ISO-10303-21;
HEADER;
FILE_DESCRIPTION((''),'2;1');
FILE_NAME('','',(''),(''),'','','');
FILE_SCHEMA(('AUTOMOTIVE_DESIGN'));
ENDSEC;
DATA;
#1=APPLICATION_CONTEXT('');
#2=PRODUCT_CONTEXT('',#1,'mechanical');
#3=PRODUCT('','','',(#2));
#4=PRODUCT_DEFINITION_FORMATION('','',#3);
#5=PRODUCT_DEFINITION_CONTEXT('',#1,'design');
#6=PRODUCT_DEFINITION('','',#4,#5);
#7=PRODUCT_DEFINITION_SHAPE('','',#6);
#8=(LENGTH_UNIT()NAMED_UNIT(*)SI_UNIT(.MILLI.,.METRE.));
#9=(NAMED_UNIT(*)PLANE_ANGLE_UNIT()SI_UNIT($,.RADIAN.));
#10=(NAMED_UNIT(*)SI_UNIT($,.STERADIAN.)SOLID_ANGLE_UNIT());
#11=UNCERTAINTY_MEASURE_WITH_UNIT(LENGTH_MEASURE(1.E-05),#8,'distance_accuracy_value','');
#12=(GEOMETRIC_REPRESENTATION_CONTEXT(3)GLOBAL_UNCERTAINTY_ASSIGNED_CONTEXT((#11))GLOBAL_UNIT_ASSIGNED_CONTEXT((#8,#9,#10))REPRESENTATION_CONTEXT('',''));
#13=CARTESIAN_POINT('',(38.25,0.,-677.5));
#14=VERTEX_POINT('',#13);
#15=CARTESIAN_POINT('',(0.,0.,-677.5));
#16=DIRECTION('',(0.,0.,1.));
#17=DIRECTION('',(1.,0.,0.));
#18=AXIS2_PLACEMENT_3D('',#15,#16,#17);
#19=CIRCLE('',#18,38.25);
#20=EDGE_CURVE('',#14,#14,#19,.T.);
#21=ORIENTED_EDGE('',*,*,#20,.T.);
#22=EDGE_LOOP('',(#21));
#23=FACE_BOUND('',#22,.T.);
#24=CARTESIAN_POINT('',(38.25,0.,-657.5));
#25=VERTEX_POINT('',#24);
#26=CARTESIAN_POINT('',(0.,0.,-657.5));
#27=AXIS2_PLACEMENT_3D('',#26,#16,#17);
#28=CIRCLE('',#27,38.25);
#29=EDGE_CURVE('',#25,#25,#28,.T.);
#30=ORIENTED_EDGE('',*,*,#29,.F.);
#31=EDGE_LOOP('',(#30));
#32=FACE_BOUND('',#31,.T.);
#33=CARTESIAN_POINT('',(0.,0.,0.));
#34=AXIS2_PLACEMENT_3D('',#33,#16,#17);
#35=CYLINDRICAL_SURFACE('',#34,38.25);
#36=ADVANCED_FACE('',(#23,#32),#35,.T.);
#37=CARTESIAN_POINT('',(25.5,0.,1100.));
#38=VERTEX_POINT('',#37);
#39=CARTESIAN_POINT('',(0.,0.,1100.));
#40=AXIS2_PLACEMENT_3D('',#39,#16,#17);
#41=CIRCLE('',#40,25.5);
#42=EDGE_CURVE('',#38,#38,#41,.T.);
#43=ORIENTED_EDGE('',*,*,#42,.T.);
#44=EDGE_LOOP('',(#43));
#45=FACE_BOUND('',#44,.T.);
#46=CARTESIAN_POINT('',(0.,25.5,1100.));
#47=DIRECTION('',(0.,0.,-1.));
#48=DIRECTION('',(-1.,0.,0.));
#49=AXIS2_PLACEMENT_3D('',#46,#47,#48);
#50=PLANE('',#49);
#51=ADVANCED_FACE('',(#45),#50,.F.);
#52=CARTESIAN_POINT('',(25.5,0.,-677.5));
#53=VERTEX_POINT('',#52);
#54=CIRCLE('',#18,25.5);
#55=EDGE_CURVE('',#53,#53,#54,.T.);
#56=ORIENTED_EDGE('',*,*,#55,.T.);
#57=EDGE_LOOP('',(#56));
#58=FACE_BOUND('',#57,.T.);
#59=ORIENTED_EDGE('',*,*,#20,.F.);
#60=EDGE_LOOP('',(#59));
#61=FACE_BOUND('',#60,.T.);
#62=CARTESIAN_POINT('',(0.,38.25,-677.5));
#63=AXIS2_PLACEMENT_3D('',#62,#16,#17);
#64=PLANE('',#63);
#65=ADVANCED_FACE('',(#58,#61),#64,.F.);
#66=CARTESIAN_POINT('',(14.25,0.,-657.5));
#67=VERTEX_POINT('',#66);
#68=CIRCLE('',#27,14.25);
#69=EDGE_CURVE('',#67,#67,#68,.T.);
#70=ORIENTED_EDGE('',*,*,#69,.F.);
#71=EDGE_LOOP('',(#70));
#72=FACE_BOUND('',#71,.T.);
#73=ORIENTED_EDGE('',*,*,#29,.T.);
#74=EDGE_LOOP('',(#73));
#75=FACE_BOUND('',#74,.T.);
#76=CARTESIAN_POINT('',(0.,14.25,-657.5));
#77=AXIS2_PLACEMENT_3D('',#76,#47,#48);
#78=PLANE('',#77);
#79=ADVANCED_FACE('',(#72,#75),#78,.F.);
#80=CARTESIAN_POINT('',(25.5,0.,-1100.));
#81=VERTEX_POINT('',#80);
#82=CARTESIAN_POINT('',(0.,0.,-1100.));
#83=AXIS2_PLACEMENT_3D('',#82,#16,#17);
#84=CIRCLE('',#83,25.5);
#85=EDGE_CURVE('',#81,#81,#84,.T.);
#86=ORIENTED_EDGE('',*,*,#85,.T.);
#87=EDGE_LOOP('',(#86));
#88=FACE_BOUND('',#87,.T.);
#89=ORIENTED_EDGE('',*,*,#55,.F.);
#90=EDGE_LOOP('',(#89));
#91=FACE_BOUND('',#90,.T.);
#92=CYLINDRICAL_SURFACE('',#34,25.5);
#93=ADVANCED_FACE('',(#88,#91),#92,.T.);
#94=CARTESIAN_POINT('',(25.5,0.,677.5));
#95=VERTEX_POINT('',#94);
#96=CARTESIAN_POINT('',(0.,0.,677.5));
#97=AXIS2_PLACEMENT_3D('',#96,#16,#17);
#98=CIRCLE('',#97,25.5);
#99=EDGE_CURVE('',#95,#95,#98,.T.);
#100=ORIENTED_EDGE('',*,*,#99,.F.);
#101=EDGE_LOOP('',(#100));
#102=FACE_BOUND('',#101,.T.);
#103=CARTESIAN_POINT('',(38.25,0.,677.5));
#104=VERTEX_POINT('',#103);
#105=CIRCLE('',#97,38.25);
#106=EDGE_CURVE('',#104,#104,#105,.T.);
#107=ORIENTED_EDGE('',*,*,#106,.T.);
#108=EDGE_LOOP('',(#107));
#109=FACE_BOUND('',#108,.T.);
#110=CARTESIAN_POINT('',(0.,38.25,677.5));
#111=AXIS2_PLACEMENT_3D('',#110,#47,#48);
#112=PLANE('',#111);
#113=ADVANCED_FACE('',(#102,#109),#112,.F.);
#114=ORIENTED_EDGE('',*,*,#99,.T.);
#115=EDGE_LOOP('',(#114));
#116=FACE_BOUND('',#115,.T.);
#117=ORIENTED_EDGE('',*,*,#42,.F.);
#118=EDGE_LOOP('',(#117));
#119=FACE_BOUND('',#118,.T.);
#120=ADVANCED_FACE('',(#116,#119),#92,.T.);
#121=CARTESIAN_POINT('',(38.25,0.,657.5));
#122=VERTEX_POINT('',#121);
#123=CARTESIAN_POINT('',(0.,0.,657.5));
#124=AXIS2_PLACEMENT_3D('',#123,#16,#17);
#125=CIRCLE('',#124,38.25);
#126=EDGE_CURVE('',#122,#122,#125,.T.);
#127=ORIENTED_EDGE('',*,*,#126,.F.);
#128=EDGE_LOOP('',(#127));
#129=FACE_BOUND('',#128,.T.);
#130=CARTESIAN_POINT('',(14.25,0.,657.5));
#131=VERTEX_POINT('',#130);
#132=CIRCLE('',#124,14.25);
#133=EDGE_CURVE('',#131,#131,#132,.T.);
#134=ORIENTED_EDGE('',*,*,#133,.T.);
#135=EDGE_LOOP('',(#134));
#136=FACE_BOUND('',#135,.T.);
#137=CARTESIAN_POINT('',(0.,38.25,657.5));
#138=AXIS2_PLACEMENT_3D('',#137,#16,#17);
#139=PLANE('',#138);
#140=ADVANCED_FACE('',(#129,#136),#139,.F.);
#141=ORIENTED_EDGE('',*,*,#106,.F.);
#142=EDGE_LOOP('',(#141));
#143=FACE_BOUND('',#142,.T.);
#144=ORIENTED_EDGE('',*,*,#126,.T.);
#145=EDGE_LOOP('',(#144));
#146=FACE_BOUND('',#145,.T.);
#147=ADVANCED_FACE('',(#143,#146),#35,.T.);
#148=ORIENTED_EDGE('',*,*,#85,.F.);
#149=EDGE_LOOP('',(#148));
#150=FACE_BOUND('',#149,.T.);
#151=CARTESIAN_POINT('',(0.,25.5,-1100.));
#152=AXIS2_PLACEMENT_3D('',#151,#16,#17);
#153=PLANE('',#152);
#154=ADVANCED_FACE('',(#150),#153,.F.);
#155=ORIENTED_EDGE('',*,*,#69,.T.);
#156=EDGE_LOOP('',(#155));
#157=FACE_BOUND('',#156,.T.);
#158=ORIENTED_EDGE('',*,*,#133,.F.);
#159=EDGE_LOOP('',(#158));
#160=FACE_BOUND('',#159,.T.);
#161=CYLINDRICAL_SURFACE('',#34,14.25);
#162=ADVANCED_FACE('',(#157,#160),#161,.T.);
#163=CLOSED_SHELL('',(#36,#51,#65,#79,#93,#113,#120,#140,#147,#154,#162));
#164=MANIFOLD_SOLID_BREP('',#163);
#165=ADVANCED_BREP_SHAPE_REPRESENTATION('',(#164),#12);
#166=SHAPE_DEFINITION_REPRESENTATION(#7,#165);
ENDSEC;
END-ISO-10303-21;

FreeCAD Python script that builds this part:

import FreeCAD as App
import Part
import Sketcher
Q = App.Units.Quantity

doc = App.newDocument("Part")
params = doc.addObject("Spreadsheet::Sheet", "Params")
for row, (alias, value) in enumerate([
    ("sketch1_width", "24 mm"),
    ("sketch1_height", "2200 mm"),
    ("sketch1_height2", "20 mm"),
    ("sketch1_height3", "1315 mm"),
    ("sketch1_width2", "25.5 mm"),
    ("revolution_angle", "360 deg"),
], start=1):
    params.set(f"A{row}", alias)
    params.set(f"B{row}", "=" + value)
    params.setAlias(f"B{row}", alias)

body = doc.addObject("PartDesign::Body", "Body")

# Sketch on YZ plane
sketch1 = doc.addObject("Sketcher::SketchObject", "Sketch")
body.addObject(sketch1)
sketch1.AttachmentSupport = (doc.YZ_Plane, [""])
sketch1.MapMode = "FlatFace"
sketch1.addGeometry([
    Part.LineSegment(App.Vector(0, 1100, 0), App.Vector(0, -1100, 0)),  # 0
    Part.LineSegment(App.Vector(0, -1100, 0), App.Vector(26, -1100, 0)),  # 1
    Part.LineSegment(App.Vector(26, -1100, 0), App.Vector(26, -678, 0)),  # 2
    Part.LineSegment(App.Vector(26, -678, 0), App.Vector(38, -678, 0)),  # 3
    Part.LineSegment(App.Vector(38, -678, 0), App.Vector(38, -658, 0)),  # 4
    Part.LineSegment(App.Vector(38, -658, 0), App.Vector(14, -658, 0)),  # 5
    Part.LineSegment(App.Vector(14, -658, 0), App.Vector(14, 658, 0)),  # 6
    Part.LineSegment(App.Vector(14, 658, 0), App.Vector(38, 658, 0)),  # 7
    Part.LineSegment(App.Vector(38, 658, 0), App.Vector(38, 678, 0)),  # 8
    Part.LineSegment(App.Vector(38, 678, 0), App.Vector(26, 678, 0)),  # 9
    Part.LineSegment(App.Vector(26, 678, 0), App.Vector(26, 1100, 0)),  # 10
    Part.LineSegment(App.Vector(26, 1100, 0), App.Vector(0, 1100, 0)),  # 11
], False)
sketch1.addConstraint([
    Sketcher.Constraint("Coincident", 0, 2, 1, 1),
    Sketcher.Constraint("Coincident", 1, 2, 2, 1),
    Sketcher.Constraint("Coincident", 2, 2, 3, 1),
    Sketcher.Constraint("Coincident", 3, 2, 4, 1),
    Sketcher.Constraint("Coincident", 4, 2, 5, 1),
    Sketcher.Constraint("Coincident", 5, 2, 6, 1),
    Sketcher.Constraint("Coincident", 6, 2, 7, 1),
    Sketcher.Constraint("Coincident", 7, 2, 8, 1),
    Sketcher.Constraint("Coincident", 8, 2, 9, 1),
    Sketcher.Constraint("Coincident", 9, 2, 10, 1),
    Sketcher.Constraint("Coincident", 10, 2, 11, 1),
    Sketcher.Constraint("Coincident", 11, 2, 0, 1),
    Sketcher.Constraint("Vertical", 0),
    Sketcher.Constraint("Horizontal", 1),
    Sketcher.Constraint("Vertical", 2),
    Sketcher.Constraint("Horizontal", 3),
    Sketcher.Constraint("Vertical", 4),
    Sketcher.Constraint("Horizontal", 5),
    Sketcher.Constraint("Vertical", 6),
    Sketcher.Constraint("Horizontal", 7),
    Sketcher.Constraint("Vertical", 8),
    Sketcher.Constraint("Horizontal", 9),
    Sketcher.Constraint("Vertical", 10),
    Sketcher.Constraint("Horizontal", 11),
    Sketcher.Constraint("Symmetric", 0, 2, 11, 2, -1, 1),
    Sketcher.Constraint("Symmetric", 4, 2, 7, 2, -1),
    Sketcher.Constraint("Symmetric", 2, 2, 9, 2, -1),
    Sketcher.Constraint("DistanceX", 5, 2, 5, 1, Q("24 mm")),
    Sketcher.Constraint("DistanceY", 0, 2, 0, 1, Q("2200 mm")),
    Sketcher.Constraint("DistanceY", 4, 1, 4, 2, Q("20 mm")),
    Sketcher.Constraint("DistanceY", 6, 1, 6, 2, Q("1315 mm")),
    Sketcher.Constraint("DistanceX", 1, 1, 1, 2, Q("25.5 mm")),
    Sketcher.Constraint("DistanceX", 3, 1, 3, 2, Q("12.75 mm")),
])
sketch1.setExpression("Constraints[27]", "Params.sketch1_width")
sketch1.setExpression("Constraints[28]", "Params.sketch1_height")
sketch1.setExpression("Constraints[29]", "Params.sketch1_height2")
sketch1.setExpression("Constraints[30]", "Params.sketch1_height3")
sketch1.setExpression("Constraints[31]", "Params.sketch1_width2")
revolution = doc.addObject("PartDesign::Revolution", "Revolution")
body.addObject(revolution)
revolution.Profile = sketch1
revolution.ReferenceAxis = (sketch1, ["V_Axis"])
revolution.setExpression("Angle", "Params.revolution_angle")

doc.recompute()
